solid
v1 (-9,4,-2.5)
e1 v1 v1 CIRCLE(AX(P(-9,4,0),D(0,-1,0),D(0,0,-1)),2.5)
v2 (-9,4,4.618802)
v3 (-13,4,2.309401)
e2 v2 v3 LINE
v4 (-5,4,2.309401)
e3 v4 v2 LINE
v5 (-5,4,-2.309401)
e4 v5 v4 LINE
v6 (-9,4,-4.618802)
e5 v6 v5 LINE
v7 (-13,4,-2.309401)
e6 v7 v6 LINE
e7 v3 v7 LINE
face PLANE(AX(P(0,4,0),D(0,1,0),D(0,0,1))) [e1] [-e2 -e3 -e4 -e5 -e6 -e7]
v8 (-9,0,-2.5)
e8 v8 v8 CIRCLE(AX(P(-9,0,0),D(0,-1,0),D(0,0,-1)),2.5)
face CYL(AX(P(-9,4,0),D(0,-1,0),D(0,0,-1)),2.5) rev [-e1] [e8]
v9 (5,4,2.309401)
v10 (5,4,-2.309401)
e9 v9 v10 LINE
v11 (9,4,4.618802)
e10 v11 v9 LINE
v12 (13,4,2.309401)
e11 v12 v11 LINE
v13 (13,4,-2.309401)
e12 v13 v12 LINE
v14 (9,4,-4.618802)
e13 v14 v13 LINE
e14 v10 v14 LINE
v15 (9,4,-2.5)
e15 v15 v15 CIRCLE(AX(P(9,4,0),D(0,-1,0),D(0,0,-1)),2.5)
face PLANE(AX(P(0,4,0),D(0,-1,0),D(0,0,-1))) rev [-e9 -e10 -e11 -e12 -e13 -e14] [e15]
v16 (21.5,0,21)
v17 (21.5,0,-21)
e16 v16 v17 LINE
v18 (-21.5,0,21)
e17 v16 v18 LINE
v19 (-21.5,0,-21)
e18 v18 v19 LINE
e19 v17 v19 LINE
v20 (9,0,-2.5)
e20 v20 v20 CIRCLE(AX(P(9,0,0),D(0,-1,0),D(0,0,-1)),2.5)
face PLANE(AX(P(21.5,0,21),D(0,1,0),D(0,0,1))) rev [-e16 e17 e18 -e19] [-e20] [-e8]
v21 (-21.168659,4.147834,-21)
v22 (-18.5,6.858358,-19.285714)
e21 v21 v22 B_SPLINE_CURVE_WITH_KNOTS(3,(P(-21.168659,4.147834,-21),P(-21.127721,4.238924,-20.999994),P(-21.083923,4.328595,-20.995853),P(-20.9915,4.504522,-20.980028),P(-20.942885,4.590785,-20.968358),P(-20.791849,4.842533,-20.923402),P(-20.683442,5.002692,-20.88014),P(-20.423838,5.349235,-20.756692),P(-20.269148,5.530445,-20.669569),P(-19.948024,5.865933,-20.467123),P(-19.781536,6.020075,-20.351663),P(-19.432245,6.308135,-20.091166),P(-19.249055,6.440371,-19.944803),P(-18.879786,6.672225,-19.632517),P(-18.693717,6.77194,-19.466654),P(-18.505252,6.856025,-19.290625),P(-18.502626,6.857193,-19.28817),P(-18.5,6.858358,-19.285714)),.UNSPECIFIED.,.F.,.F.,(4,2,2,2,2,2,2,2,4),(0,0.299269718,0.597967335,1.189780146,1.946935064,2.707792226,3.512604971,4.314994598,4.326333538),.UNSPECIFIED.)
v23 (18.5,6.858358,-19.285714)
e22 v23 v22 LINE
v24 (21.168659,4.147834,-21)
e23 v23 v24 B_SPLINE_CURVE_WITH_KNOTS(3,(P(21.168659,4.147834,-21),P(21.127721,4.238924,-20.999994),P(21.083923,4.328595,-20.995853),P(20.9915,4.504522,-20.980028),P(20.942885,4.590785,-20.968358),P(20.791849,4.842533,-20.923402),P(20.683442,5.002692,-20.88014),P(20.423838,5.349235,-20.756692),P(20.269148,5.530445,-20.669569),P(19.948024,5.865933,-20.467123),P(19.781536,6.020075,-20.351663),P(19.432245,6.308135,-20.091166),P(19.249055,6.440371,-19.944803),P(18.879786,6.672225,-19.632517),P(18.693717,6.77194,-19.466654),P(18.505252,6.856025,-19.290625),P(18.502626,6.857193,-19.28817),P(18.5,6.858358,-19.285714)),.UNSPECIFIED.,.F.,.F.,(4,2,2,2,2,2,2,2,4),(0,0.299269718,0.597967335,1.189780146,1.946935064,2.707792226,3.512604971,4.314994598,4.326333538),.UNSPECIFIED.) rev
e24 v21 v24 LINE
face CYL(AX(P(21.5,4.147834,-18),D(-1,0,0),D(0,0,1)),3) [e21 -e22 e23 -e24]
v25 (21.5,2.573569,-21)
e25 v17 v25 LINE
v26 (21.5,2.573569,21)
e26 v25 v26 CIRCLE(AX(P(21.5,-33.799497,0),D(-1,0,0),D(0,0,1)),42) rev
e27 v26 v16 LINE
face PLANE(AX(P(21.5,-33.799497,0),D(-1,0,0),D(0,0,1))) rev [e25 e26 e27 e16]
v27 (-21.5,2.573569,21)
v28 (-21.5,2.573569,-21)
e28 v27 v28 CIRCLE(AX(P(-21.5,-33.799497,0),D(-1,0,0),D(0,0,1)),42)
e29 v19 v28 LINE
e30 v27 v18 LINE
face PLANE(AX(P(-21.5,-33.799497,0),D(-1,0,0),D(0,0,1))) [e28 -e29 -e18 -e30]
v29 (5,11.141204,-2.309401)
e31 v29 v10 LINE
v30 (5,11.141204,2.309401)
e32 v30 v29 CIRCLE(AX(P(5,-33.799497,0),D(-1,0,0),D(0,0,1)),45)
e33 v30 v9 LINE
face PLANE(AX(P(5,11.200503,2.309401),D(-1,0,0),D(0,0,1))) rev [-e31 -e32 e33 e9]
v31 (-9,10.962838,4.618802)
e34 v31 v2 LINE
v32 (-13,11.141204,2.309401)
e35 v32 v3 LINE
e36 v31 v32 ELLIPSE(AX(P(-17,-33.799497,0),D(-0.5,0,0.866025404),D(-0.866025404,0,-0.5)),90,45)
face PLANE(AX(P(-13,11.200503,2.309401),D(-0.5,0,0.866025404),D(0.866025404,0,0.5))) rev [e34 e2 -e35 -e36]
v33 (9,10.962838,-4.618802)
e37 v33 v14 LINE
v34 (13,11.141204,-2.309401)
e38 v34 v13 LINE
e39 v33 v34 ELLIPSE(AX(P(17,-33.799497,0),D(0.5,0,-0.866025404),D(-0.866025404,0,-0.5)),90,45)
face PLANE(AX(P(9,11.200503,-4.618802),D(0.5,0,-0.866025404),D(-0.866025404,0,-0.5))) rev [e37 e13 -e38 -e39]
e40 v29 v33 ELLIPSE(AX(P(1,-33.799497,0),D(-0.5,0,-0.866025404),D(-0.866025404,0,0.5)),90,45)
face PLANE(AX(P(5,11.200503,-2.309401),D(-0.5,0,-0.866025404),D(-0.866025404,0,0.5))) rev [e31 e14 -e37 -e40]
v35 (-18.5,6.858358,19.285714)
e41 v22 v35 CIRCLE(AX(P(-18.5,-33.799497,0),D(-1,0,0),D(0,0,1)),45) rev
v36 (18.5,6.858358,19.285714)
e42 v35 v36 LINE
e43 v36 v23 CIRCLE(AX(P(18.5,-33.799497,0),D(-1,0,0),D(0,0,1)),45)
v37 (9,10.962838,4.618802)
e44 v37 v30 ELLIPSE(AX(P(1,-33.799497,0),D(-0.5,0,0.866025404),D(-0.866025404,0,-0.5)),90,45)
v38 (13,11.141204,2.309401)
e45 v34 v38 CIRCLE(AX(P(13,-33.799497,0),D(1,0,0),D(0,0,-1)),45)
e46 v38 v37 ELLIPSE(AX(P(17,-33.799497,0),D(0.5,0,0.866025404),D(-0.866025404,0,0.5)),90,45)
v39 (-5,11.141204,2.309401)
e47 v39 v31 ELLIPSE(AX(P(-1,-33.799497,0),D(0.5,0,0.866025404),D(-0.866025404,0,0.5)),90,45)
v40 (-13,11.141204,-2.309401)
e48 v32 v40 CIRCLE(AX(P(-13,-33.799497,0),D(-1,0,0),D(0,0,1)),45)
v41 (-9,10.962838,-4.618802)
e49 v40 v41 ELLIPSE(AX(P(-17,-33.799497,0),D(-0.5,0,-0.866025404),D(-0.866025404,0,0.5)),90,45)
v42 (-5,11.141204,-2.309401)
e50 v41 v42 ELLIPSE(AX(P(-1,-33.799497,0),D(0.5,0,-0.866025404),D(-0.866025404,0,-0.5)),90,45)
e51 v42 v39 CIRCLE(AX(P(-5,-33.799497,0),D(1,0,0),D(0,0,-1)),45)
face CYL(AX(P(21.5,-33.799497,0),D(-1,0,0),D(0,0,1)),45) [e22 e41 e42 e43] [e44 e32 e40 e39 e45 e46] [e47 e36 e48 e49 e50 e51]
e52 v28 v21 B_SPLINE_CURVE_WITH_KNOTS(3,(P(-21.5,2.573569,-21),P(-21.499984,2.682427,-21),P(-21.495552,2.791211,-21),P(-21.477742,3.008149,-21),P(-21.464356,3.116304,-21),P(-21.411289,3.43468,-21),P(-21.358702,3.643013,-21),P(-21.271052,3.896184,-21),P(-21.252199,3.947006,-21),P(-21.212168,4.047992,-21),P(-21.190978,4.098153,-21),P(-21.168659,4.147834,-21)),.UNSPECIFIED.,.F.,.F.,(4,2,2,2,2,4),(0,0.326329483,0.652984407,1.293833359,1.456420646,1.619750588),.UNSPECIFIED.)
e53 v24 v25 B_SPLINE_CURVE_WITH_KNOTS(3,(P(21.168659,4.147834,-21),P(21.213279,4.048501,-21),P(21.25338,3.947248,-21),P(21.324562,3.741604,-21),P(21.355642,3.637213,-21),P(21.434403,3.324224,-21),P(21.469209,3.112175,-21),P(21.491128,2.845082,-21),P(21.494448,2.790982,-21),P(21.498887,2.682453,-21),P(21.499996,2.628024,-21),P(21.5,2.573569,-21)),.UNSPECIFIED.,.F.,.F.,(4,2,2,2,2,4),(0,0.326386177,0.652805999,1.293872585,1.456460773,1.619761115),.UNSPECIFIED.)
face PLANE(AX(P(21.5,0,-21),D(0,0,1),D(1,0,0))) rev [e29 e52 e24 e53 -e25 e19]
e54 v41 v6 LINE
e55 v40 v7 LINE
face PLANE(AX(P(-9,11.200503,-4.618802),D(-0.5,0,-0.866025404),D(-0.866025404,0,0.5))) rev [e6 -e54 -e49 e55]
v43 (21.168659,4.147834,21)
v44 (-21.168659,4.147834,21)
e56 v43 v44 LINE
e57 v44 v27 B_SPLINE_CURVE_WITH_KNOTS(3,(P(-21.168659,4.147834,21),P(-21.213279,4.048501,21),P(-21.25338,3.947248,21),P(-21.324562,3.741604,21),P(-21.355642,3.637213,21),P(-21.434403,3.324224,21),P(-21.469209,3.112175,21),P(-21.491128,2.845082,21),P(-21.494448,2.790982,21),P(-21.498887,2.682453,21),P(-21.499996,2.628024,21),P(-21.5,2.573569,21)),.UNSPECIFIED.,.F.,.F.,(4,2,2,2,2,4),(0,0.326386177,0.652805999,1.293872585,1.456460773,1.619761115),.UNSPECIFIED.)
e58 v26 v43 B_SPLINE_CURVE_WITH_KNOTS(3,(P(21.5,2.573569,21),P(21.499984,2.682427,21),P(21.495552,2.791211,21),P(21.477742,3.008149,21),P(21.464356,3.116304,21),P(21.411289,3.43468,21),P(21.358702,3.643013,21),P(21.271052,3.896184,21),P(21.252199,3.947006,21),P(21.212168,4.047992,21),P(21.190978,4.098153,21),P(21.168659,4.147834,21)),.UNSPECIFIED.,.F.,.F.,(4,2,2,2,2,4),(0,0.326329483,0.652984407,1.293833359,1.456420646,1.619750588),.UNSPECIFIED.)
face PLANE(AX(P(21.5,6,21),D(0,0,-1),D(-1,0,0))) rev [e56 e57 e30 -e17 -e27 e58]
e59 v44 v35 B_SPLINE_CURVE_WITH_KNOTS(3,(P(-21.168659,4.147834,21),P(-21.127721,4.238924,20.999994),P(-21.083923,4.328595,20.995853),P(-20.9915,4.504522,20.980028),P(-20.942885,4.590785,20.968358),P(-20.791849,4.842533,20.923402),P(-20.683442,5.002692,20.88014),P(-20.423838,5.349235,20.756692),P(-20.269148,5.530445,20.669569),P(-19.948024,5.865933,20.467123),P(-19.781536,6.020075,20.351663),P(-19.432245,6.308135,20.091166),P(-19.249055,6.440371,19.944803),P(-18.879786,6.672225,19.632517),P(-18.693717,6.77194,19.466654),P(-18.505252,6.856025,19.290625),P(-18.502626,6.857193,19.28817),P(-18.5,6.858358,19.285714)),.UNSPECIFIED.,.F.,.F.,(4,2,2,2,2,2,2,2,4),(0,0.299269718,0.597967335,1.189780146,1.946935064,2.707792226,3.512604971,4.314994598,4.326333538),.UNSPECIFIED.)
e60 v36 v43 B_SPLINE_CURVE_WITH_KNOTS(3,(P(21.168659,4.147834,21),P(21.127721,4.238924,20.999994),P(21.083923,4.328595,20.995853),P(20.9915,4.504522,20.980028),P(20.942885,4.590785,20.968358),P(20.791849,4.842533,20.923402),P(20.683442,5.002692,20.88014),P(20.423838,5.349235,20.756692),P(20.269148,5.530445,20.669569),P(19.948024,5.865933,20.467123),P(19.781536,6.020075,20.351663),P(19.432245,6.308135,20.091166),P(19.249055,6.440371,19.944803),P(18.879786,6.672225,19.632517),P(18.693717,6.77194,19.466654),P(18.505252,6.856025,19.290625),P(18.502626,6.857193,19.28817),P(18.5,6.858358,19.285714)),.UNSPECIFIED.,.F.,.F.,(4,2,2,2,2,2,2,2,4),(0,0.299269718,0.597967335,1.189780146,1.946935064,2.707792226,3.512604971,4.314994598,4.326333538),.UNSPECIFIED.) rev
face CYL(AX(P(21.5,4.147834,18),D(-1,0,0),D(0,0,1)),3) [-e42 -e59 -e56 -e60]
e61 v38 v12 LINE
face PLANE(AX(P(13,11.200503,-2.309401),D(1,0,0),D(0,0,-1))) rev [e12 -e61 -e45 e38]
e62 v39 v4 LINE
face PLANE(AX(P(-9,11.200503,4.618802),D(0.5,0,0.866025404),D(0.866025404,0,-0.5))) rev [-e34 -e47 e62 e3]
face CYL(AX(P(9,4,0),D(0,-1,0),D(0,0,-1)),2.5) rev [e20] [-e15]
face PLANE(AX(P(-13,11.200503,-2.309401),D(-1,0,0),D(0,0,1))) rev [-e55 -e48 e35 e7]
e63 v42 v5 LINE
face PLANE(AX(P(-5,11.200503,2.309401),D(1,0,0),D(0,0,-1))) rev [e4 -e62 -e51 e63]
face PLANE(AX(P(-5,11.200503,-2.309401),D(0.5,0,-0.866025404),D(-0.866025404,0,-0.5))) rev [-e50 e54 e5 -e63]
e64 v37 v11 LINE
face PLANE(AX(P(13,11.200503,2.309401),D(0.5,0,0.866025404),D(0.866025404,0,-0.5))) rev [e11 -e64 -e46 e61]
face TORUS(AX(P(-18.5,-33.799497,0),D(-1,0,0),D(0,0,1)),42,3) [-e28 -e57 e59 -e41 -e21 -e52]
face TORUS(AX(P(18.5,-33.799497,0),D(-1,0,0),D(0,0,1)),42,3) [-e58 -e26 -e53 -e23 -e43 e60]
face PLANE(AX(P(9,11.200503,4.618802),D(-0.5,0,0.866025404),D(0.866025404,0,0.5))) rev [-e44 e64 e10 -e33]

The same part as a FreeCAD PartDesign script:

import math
import FreeCAD as App
import Part
import Sketcher
from FreeCAD import Vector
Q = App.Units.Quantity


def edges_at(feature, points):
    """Names of the edges that pass closest to the given points."""
    edges = feature.Shape.Edges
    near = lambda p: min(range(len(edges)), key=lambda i: edges[i].distToShape(Part.Vertex(*p))[0])
    return sorted({f"Edge{near(p) + 1}" for p in points})

doc = App.newDocument("Part")
body = doc.addObject("PartDesign::Body", "Body")

sketch1 = body.newObject("Sketcher::SketchObject", "Sketch")
sketch1.AttachmentSupport = (doc.getObject("YZ_Plane"), [""])
sketch1.MapMode = "FlatFace"
sketch1.addGeometry([
    Part.LineSegment(Vector(6, 21, 0), Vector(0, 21, 0)),
    Part.LineSegment(Vector(0, 21, 0), Vector(0, -21, 0)),
    Part.LineSegment(Vector(0, -21, 0), Vector(6, -21, 0)),
    Part.ArcOfCircle(Part.Circle(Vector(-34, 0, 0), Vector(0, 0, 1), 45), math.radians(-28), math.radians(28)),
], False)
sketch1.addConstraint([
    Sketcher.Constraint("Coincident", 0, 2, 1, 1),
    Sketcher.Constraint("Coincident", 1, 2, 2, 1),
    Sketcher.Constraint("Coincident", 2, 2, 3, 1),
    Sketcher.Constraint("Coincident", 3, 2, 0, 1),
    Sketcher.Constraint("Horizontal", 0),
    Sketcher.Constraint("Vertical", 1),
    Sketcher.Constraint("Horizontal", 2),
    Sketcher.Constraint("Symmetric", 0, 2, 1, 2, -1, 1),
    Sketcher.Constraint("PointOnObject", 3, 3, -1),
    Sketcher.Constraint("Radius", 3, Q("45 mm")),
    Sketcher.Constraint("DistanceX", 0, 2, 0, 1, Q("6 mm")),
    Sketcher.Constraint("DistanceY", 1, 2, 1, 1, Q("42 mm")),
])
pad1 = body.newObject("PartDesign::Pad", "Pad")
pad1.Profile = sketch1
pad1.Length = 43
pad1.Midplane = True
doc.recompute()

fillet = body.newObject("PartDesign::Fillet", "Fillet")
fillet.Base = (pad1, edges_at(pad1, [
    (21.5, 11.201, 0),
    (-21.5, 11.201, 0),
    (0, 6, -21),
    (0, 6, 21),
]))
fillet.Radius = 3

sketch2 = body.newObject("Sketcher::SketchObject", "Sketch001")
sketch2.AttachmentSupport = (doc.getObject("XZ_Plane"), [""])
sketch2.MapMode = "FlatFace"
sketch2.AttachmentOffset = App.Placement(Vector(0, 0, -4), App.Rotation())
sketch2.addGeometry([
    Part.LineSegment(Vector(5, 2.3, 0), Vector(5, -2.3, 0)),
    Part.LineSegment(Vector(5, -2.3, 0), Vector(9, -4.6, 0)),
    Part.LineSegment(Vector(9, -4.6, 0), Vector(13, -2.3, 0)),
    Part.LineSegment(Vector(13, -2.3, 0), Vector(13, 2.3, 0)),
    Part.LineSegment(Vector(13, 2.3, 0), Vector(9, 4.6, 0)),
    Part.LineSegment(Vector(9, 4.6, 0), Vector(5, 2.3, 0)),
    Part.LineSegment(Vector(-5, 2.3, 0), Vector(-9, 4.6, 0)),
    Part.LineSegment(Vector(-9, 4.6, 0), Vector(-13, 2.3, 0)),
    Part.LineSegment(Vector(-13, 2.3, 0), Vector(-13, -2.3, 0)),
    Part.LineSegment(Vector(-13, -2.3, 0), Vector(-9, -4.6, 0)),
    Part.LineSegment(Vector(-9, -4.6, 0), Vector(-5, -2.3, 0)),
    Part.LineSegment(Vector(-5, -2.3, 0), Vector(-5, 2.3, 0)),
], False)
sketch2.addConstraint([
    Sketcher.Constraint("Coincident", 0, 2, 1, 1),
    Sketcher.Constraint("Coincident", 1, 2, 2, 1),
    Sketcher.Constraint("Coincident", 2, 2, 3, 1),
    Sketcher.Constraint("Coincident", 3, 2, 4, 1),
    Sketcher.Constraint("Coincident", 4, 2, 5, 1),
    Sketcher.Constraint("Coincident", 5, 2, 0, 1),
    Sketcher.Constraint("Coincident", 6, 2, 7, 1),
    Sketcher.Constraint("Coincident", 7, 2, 8, 1),
    Sketcher.Constraint("Coincident", 8, 2, 9, 1),
    Sketcher.Constraint("Coincident", 9, 2, 10, 1),
    Sketcher.Constraint("Coincident", 10, 2, 11, 1),
    Sketcher.Constraint("Coincident", 11, 2, 6, 1),
    Sketcher.Constraint("Vertical", 0),
    Sketcher.Constraint("Vertical", 3),
    Sketcher.Constraint("Vertical", 8),
    Sketcher.Constraint("Vertical", 11),
    Sketcher.Constraint("Symmetric", 1, 2, 6, 2, -1, 1),
    Sketcher.Constraint("Symmetric", 2, 2, 7, 2, -1, 1),
    Sketcher.Constraint("Symmetric", 4, 2, 9, 2, -1, 1),
    Sketcher.Constraint("Symmetric", 5, 2, 10, 2, -1, 1),
    Sketcher.Constraint("Symmetric", 4, 2, 6, 2, -2),
    Sketcher.Constraint("Parallel", 1, 4),
    Sketcher.Constraint("Parallel", 2, 5),
    Sketcher.Constraint("Parallel", 4, 6),
    Sketcher.Constraint("Parallel", 6, 9),
    Sketcher.Constraint("Horizontal", 0, 2, 2, 2),
    Sketcher.Constraint("Horizontal", 3, 2, 5, 2),
    Sketcher.Constraint("Angle", 1, Q("-30 deg")),
    Sketcher.Constraint("DistanceX", -1, 1, 0, 2, Q("5 mm")),
    Sketcher.Constraint("DistanceX", -1, 1, 1, 2, Q("9 mm")),
    Sketcher.Constraint("DistanceY", 0, 2, -1, 1, Q("2.309401 mm")),
])
pocket1 = body.newObject("PartDesign::Pocket", "Pocket")
pocket1.Profile = sketch2
pocket1.Type = "ThroughAll"

sketch3 = body.newObject("Sketcher::SketchObject", "Sketch002")
sketch3.AttachmentSupport = (doc.getObject("XZ_Plane"), [""])
sketch3.MapMode = "FlatFace"
sketch3.addGeometry([
    Part.Circle(Vector(9, 0, 0), Vector(0, 0, 1), 2.5),
    Part.Circle(Vector(-9, 0, 0), Vector(0, 0, 1), 2.5),
], False)
sketch3.addConstraint([
    Sketcher.Constraint("Equal", 0, 1),
    Sketcher.Constraint("Symmetric", 0, 3, 1, 3, -1, 1),
    Sketcher.Constraint("PointOnObject", 0, 3, -1),
    Sketcher.Constraint("Diameter", 0, Q("5 mm")),
    Sketcher.Constraint("DistanceX", -1, 1, 0, 3, Q("9 mm")),
])
pocket2 = body.newObject("PartDesign::Pocket", "Pocket001")
pocket2.Profile = sketch3
pocket2.Length = 4

doc.recompute()
